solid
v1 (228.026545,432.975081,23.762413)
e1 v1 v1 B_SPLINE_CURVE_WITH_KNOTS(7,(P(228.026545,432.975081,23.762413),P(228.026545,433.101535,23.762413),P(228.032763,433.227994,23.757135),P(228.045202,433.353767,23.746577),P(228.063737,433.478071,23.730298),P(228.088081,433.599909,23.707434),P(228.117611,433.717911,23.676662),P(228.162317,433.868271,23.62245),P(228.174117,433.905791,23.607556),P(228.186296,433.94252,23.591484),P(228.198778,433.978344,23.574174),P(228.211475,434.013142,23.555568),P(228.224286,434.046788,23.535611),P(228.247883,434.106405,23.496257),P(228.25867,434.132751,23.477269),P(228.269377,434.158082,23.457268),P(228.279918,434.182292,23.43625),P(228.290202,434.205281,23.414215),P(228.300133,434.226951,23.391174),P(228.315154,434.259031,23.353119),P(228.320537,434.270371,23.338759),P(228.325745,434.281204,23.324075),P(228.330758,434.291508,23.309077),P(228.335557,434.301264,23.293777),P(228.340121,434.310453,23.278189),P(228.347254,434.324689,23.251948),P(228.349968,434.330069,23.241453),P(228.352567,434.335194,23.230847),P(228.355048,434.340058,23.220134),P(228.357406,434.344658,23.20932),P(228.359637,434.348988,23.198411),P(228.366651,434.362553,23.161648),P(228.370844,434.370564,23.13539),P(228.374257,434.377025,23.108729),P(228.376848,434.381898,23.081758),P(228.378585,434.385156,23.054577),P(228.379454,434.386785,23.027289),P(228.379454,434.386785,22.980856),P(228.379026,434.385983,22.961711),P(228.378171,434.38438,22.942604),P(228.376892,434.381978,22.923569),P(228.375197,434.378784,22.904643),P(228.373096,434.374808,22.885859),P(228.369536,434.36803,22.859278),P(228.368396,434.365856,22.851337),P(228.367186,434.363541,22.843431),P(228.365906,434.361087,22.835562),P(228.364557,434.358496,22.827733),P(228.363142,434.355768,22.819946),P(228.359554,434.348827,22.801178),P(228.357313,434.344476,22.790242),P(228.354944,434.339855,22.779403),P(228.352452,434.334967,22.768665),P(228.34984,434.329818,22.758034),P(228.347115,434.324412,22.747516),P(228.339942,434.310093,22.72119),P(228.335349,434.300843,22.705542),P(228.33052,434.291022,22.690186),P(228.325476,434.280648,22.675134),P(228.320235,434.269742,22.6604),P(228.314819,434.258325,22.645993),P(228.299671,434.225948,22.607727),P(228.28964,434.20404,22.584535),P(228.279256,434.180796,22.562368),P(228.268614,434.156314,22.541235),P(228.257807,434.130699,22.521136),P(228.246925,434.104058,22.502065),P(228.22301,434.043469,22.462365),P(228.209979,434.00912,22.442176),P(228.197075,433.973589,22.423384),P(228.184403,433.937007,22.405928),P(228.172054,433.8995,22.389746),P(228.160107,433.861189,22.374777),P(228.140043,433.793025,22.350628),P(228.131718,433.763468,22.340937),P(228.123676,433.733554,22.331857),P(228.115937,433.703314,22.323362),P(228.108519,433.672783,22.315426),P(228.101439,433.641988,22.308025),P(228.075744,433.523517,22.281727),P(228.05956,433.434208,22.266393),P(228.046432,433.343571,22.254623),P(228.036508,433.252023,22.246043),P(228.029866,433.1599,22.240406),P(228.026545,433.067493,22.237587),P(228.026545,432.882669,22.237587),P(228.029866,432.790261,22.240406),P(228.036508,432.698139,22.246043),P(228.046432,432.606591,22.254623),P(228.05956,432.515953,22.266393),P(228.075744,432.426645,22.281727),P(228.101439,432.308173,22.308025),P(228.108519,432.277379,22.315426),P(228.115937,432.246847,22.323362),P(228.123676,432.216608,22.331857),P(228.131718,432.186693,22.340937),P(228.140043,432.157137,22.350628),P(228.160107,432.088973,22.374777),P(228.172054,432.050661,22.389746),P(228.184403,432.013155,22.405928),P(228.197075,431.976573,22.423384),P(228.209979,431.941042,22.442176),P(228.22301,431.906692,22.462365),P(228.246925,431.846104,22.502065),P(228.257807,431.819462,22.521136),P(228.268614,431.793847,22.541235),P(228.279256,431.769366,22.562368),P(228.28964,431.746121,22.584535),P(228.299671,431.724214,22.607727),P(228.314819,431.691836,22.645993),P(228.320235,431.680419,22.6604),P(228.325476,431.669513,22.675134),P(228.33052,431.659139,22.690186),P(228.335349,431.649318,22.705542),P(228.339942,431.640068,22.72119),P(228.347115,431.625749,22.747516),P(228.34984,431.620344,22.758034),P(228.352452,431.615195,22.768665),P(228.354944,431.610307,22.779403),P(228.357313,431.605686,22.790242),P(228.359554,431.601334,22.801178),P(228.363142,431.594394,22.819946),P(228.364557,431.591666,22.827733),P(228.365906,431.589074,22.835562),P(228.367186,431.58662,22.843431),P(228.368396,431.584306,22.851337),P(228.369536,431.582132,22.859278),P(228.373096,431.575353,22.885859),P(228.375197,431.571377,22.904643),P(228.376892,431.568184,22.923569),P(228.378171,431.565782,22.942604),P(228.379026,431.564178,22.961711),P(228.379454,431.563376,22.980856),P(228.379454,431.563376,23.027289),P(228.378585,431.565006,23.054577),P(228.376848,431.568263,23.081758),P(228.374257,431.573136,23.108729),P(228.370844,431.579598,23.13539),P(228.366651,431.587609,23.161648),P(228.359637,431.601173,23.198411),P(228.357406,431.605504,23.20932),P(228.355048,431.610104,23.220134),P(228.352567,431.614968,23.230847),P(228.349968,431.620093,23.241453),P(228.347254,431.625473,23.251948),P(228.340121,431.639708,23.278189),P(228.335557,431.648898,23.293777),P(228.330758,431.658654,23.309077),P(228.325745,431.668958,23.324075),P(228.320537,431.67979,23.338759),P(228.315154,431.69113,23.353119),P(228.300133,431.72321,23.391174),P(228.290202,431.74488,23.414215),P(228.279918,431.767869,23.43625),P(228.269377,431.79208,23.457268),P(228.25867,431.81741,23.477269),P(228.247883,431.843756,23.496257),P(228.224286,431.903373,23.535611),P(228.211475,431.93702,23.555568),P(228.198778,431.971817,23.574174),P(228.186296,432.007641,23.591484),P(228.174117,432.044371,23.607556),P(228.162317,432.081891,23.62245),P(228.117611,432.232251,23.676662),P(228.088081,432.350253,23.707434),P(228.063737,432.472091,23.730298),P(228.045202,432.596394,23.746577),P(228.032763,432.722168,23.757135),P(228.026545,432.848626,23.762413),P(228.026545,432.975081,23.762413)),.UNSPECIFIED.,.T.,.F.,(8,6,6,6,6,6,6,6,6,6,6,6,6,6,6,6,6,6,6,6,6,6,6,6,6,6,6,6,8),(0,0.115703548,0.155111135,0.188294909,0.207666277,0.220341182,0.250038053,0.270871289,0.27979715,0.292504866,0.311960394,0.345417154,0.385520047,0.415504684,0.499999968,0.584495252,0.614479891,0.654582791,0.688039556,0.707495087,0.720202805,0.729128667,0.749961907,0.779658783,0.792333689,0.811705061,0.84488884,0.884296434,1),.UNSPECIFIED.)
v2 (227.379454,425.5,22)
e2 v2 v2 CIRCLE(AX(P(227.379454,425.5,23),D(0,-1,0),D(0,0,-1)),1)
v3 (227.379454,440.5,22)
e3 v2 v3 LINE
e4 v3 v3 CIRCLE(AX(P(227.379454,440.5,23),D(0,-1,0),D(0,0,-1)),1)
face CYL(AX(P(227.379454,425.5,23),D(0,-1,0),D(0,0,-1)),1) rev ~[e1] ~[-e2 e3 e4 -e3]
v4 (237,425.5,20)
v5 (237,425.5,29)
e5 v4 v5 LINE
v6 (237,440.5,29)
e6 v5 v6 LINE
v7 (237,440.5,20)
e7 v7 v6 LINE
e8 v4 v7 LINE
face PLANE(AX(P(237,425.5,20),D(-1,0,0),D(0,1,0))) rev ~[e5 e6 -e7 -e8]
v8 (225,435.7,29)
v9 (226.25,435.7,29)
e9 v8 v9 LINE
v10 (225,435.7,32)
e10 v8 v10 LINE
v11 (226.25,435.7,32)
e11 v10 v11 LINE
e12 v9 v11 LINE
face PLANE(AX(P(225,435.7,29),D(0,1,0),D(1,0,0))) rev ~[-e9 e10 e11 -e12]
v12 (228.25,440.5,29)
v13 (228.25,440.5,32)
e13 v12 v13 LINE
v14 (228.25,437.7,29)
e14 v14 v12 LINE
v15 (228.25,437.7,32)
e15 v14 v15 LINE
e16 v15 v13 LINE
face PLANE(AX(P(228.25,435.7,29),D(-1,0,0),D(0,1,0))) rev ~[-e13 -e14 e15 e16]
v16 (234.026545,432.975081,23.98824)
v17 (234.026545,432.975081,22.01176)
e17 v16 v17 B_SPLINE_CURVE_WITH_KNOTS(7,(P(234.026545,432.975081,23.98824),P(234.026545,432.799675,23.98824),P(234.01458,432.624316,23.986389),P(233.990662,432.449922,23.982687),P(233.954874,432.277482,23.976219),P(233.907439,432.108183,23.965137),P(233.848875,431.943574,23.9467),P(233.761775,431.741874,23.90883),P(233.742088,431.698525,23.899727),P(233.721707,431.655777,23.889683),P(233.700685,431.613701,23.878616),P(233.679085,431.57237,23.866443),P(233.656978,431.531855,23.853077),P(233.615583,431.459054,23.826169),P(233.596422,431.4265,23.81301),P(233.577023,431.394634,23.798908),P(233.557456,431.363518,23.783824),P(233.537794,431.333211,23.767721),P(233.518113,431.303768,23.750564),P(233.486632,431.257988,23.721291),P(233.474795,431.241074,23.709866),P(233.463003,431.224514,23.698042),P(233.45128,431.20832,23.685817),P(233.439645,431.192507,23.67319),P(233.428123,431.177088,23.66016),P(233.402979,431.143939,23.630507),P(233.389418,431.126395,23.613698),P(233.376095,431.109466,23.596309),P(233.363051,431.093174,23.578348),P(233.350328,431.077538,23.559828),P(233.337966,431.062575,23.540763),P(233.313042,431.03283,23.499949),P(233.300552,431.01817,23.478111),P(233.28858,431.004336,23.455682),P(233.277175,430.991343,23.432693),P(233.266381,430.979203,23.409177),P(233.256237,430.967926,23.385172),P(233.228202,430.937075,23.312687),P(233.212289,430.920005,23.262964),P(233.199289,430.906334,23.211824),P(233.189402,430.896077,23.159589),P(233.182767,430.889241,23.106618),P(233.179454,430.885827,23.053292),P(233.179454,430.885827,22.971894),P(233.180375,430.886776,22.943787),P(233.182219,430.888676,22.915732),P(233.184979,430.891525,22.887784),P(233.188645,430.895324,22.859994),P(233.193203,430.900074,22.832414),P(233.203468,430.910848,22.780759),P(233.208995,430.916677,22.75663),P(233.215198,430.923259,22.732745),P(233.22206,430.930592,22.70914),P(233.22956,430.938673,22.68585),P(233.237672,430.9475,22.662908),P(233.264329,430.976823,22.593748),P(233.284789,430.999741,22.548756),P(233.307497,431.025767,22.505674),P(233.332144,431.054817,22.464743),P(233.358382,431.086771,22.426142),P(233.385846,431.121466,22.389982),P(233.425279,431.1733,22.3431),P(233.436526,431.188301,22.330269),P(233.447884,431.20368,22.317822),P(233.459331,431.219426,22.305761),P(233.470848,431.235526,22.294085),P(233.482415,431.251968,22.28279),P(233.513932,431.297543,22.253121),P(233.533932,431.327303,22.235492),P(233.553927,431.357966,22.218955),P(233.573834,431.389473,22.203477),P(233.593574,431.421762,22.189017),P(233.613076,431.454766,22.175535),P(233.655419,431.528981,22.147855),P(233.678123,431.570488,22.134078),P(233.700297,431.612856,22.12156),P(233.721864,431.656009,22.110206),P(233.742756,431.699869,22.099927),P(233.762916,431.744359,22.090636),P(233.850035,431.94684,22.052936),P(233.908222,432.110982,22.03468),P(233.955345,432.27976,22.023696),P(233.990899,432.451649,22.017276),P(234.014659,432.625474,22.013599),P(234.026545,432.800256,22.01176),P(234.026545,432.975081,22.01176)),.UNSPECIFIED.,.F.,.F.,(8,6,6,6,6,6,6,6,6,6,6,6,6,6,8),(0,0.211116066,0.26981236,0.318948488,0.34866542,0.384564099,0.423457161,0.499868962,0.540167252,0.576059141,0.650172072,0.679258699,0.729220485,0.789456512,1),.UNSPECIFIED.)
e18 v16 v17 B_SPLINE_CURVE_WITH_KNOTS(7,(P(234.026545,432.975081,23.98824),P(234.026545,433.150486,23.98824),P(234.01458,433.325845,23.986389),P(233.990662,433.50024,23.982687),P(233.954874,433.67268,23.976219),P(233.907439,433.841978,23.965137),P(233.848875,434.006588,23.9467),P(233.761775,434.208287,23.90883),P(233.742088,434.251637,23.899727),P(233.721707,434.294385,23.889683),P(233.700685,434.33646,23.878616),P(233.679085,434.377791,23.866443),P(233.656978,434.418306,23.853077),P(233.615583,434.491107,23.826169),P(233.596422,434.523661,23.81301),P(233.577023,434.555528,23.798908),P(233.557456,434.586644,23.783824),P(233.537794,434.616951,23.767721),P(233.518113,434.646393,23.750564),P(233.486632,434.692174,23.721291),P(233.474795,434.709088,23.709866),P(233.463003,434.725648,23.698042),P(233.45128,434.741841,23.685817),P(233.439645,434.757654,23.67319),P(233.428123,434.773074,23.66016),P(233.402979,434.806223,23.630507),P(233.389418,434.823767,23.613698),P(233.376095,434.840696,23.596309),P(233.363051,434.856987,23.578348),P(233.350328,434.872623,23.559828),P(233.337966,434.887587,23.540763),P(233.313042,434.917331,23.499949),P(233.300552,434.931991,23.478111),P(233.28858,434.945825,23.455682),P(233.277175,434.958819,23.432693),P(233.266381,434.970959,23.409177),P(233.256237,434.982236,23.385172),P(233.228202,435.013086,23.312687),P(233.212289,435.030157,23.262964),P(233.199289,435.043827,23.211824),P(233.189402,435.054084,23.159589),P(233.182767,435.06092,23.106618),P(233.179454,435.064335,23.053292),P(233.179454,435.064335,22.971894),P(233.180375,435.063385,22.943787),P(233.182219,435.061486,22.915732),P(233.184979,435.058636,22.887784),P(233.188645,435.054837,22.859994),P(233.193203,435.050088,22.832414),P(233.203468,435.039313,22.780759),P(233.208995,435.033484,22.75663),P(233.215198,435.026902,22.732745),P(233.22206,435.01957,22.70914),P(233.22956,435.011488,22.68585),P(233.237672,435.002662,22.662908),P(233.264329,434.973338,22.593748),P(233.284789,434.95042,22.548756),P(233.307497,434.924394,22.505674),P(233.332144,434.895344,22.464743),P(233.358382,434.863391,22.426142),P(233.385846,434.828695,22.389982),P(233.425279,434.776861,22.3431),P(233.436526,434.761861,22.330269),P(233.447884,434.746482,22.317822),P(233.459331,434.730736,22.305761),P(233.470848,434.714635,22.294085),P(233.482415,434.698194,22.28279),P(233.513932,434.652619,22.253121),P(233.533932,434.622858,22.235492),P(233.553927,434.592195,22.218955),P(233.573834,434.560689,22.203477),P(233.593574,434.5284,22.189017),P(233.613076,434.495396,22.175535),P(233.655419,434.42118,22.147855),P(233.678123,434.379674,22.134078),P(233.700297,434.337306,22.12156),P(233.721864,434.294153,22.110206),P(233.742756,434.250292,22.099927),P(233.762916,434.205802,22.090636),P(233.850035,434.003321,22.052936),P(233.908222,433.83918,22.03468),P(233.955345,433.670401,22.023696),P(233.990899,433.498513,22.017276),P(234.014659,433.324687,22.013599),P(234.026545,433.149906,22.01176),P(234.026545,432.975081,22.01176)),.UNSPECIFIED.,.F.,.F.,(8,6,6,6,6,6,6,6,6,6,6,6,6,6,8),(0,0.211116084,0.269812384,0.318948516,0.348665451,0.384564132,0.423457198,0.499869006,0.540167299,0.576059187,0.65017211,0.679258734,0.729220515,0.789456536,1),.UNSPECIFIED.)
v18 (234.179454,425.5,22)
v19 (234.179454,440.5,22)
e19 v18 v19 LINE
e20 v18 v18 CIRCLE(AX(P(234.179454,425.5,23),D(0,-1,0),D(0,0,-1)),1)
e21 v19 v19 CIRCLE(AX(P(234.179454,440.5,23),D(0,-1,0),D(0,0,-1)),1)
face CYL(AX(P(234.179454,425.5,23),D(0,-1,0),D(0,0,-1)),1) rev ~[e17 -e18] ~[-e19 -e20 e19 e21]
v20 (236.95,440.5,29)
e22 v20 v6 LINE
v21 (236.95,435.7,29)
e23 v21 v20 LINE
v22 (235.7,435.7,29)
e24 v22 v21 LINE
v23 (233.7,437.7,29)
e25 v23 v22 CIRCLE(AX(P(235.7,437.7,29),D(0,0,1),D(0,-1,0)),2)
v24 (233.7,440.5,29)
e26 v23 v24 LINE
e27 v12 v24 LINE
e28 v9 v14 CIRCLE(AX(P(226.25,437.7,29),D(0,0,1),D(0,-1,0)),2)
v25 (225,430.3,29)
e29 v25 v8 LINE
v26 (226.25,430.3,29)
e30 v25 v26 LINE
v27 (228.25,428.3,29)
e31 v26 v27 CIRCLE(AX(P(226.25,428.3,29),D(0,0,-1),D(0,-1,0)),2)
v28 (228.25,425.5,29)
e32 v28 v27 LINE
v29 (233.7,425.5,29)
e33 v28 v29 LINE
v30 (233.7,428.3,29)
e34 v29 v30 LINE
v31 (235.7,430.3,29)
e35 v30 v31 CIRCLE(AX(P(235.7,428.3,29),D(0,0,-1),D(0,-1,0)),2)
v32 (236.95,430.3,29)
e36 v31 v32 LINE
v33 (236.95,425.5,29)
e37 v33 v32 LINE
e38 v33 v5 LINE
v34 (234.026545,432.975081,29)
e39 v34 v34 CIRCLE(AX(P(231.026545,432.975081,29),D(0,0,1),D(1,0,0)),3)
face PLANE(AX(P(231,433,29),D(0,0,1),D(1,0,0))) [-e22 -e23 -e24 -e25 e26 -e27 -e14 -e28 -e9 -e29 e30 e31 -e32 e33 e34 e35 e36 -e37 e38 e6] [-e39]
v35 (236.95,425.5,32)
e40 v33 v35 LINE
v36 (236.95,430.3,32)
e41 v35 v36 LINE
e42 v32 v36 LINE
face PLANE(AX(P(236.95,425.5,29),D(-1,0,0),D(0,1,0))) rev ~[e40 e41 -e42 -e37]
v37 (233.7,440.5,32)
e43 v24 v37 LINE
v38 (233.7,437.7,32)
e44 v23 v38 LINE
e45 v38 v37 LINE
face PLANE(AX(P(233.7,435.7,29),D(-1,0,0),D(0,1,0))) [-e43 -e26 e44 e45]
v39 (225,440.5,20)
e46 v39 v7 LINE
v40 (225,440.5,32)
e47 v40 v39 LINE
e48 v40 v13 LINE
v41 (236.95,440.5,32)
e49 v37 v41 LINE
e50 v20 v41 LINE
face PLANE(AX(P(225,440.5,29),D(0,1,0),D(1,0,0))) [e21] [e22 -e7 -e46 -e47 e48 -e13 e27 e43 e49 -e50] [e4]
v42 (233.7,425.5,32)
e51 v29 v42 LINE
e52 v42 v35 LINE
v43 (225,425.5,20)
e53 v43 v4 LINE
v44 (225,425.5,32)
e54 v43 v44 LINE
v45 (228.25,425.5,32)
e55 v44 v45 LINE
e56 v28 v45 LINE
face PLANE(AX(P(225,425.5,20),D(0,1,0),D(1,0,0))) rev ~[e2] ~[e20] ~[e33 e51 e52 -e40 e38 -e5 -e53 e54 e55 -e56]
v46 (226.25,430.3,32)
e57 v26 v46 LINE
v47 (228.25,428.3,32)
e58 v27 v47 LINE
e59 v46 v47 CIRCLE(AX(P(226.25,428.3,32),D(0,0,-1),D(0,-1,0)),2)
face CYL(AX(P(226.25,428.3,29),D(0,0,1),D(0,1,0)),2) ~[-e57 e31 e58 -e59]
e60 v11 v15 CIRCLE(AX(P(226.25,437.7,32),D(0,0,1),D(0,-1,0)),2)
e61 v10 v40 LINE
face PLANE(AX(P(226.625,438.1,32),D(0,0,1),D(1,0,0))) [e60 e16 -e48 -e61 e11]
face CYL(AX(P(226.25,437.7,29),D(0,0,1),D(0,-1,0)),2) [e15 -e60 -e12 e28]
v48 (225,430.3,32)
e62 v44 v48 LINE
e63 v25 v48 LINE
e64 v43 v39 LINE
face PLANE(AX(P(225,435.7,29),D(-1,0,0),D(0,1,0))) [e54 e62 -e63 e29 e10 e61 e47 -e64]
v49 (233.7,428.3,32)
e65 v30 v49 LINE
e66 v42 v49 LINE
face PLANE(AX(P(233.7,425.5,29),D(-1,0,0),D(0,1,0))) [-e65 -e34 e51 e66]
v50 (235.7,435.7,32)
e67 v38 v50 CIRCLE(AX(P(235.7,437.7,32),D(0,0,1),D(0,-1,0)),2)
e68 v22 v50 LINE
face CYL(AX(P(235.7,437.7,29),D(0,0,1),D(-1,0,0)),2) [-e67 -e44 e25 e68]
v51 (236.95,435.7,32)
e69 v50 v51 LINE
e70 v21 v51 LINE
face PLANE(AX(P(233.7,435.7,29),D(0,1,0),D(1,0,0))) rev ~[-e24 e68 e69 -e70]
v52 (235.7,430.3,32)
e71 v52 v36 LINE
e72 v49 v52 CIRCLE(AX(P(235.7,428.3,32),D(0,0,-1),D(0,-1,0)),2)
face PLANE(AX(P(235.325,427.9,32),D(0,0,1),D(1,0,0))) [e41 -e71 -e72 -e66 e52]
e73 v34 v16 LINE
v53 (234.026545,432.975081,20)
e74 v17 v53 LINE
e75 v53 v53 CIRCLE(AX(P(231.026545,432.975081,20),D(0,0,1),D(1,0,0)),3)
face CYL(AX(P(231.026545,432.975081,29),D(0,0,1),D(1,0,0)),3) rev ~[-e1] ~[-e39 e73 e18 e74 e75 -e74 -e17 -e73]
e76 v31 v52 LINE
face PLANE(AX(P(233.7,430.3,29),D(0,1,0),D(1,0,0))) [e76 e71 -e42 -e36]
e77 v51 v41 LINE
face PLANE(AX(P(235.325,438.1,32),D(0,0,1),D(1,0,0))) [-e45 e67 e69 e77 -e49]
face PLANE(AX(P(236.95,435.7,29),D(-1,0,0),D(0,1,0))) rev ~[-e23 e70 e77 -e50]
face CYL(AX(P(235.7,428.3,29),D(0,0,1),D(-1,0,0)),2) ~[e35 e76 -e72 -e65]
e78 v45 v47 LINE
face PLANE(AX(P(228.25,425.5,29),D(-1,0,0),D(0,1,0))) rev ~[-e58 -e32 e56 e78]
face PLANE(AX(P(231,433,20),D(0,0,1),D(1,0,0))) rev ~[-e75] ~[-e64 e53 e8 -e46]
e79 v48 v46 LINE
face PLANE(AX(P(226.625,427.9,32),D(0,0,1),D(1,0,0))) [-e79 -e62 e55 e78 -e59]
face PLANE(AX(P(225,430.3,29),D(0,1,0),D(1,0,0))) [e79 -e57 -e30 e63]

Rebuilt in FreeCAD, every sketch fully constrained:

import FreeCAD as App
import Part
import Sketcher


def edges_at(feature, points):
    """Names of the edges that pass closest to the given points."""
    edges = feature.Shape.Edges
    near = lambda p: min(range(len(edges)), key=lambda i: edges[i].distToShape(Part.Vertex(*p))[0])
    return sorted({f"Edge{near(p) + 1}" for p in points})


def add_polygon(sketch, points):
    """Adds a closed chain of lines whose ends are joined by coincident constraints."""
    first, n = sketch.GeometryCount, len(points)
    for a, b in zip(points, points[1:] + points[:1]):
        sketch.addGeometry(Part.LineSegment(App.Vector(*a, 0), App.Vector(*b, 0)), False)
    for i in range(n):
        sketch.addConstraint(Sketcher.Constraint("Coincident", first + i, 2, first + (i + 1) % n, 1))

doc = App.newDocument("Part")
body = doc.addObject("PartDesign::Body", "Body")

sketch1 = doc.addObject("Sketcher::SketchObject", "Sketch")
body.addObject(sketch1)
sketch1.AttachmentSupport = (doc.XY_Plane, [""])
sketch1.MapMode = "FlatFace"
sketch1.AttachmentOffset = App.Placement(App.Vector(0, 0, 20), App.Rotation())
add_polygon(sketch1, [(225, 440), (225, 426), (237, 426), (237, 440)])
sketch1.addConstraint([
    Sketcher.Constraint("Vertical", 0),
    Sketcher.Constraint("Horizontal", 1),
    Sketcher.Constraint("Vertical", 2),
    Sketcher.Constraint("Horizontal", 3),
    Sketcher.Constraint("DistanceX", 1, 1, 1, 2, 12.0),
    Sketcher.Constraint("DistanceY", 0, 2, 0, 1, 15.0),
    Sketcher.Constraint("DistanceX", -1, 1, 0, 2, 225.0),
    Sketcher.Constraint("DistanceY", -1, 1, 0, 2, 425.5),
])
pad1 = doc.addObject("PartDesign::Pad", "Pad")
body.addObject(pad1)
pad1.Profile = sketch1
pad1.Length = 9

sketch2 = doc.addObject("Sketcher::SketchObject", "Sketch001")
body.addObject(sketch2)
sketch2.AttachmentSupport = (doc.XY_Plane, [""])
sketch2.MapMode = "FlatFace"
sketch2.AttachmentOffset = App.Placement(App.Vector(0, 0, 29), App.Rotation())
add_polygon(sketch2, [(233.7, 440.5), (233.7, 435.7), (236.9, 435.7), (236.9, 440.5)])
add_polygon(sketch2, [(225, 440.5), (225, 435.7), (228.2, 435.7), (228.2, 440.5)])
add_polygon(sketch2, [(233.7, 430.3), (233.7, 425.5), (236.9, 425.5), (236.9, 430.3)])
add_polygon(sketch2, [(225, 430.3), (225, 425.5), (228.2, 425.5), (228.2, 430.3)])
sketch2.addConstraint([
    Sketcher.Constraint("Vertical", 0),
    Sketcher.Constraint("Horizontal", 1),
    Sketcher.Constraint("Vertical", 2),
    Sketcher.Constraint("Horizontal", 3),
    Sketcher.Constraint("Vertical", 4),
    Sketcher.Constraint("Horizontal", 5),
    Sketcher.Constraint("Vertical", 6),
    Sketcher.Constraint("Horizontal", 7),
    Sketcher.Constraint("Vertical", 8),
    Sketcher.Constraint("Horizontal", 9),
    Sketcher.Constraint("Vertical", 10),
    Sketcher.Constraint("Horizontal", 11),
    Sketcher.Constraint("Vertical", 12),
    Sketcher.Constraint("Horizontal", 13),
    Sketcher.Constraint("Vertical", 14),
    Sketcher.Constraint("Horizontal", 15),
    Sketcher.Constraint("Horizontal", 1, 2, 4, 2),
    Sketcher.Constraint("Horizontal", 3, 2, 6, 2),
    Sketcher.Constraint("Horizontal", 9, 2, 12, 2),
    Sketcher.Constraint("Horizontal", 11, 2, 14, 2),
    Sketcher.Constraint("Vertical", 3, 2, 8, 2),
    Sketcher.Constraint("Vertical", 2, 2, 9, 2),
    Sketcher.Constraint("Vertical", 7, 2, 12, 2),
    Sketcher.Constraint("Vertical", 6, 2, 13, 2),
    Sketcher.Constraint("Equal", 3, 5),
    Sketcher.Constraint("Equal", 6, 8),
    Sketcher.Constraint("DistanceY", 0, 2, 0, 1, 4.8),
    Sketcher.Constraint("DistanceX", -1, 1, 4, 2, 225.0),
    Sketcher.Constraint("DistanceY", 8, 2, 3, 2, 15.0),
    Sketcher.Constraint("DistanceX", 1, 1, 1, 2, 3.25),
    Sketcher.Constraint("DistanceX", -1, 1, 0, 2, 233.7),
    Sketcher.Constraint("DistanceY", -1, 1, 0, 2, 435.7),
])
pad2 = doc.addObject("PartDesign::Pad", "Pad001")
body.addObject(pad2)
pad2.Profile = sketch2
pad2.Length = 3

sketch3 = doc.addObject("Sketcher::SketchObject", "Sketch002")
body.addObject(sketch3)
sketch3.AttachmentSupport = (doc.XY_Plane, [""])
sketch3.MapMode = "FlatFace"
sketch3.AttachmentOffset = App.Placement(App.Vector(0, 0, 29), App.Rotation())
sketch3.addGeometry(Part.Circle(App.Vector(231, 433, 0), App.Vector(0, 0, 1), 3), False)
sketch3.addConstraint([
    Sketcher.Constraint("Diameter", 0, 6.0),
    Sketcher.Constraint("DistanceY", -1, 1, 0, 3, 432.975081),
    Sketcher.Constraint("DistanceX", -1, 1, 0, 3, 231.026545),
])
pocket1 = doc.addObject("PartDesign::Pocket", "Pocket")
body.addObject(pocket1)
pocket1.Profile = sketch3
pocket1.Type = "ThroughAll"
doc.recompute()

fillet = doc.addObject("PartDesign::Fillet", "Fillet")
body.addObject(fillet)
fillet.Base = (pocket1, edges_at(pocket1, [
    (228.25, 435.7, 30.5),
    (233.7, 435.7, 30.5),
    (233.7, 430.3, 30.5),
    (228.25, 430.3, 30.5),
]))
fillet.Radius = 2

sketch4 = doc.addObject("Sketcher::SketchObject", "Sketch003")
body.addObject(sketch4)
sketch4.AttachmentSupport = (doc.XZ_Plane, [""])
sketch4.MapMode = "FlatFace"
sketch4.AttachmentOffset = App.Placement(App.Vector(0, 0, -425.5), App.Rotation())
sketch4.addGeometry([
    Part.Circle(App.Vector(227.4, 23, 0), App.Vector(0, 0, 1), 1),
    Part.Circle(App.Vector(234.2, 23, 0), App.Vector(0, 0, 1), 1),
], False)
sketch4.addConstraint([
    Sketcher.Constraint("Equal", 0, 1),
    Sketcher.Constraint("Horizontal", 0, 3, 1, 3),
    Sketcher.Constraint("Diameter", 0, 2.0),
    Sketcher.Constraint("DistanceY", -1, 1, 0, 3, 23.0),
    Sketcher.Constraint("DistanceX", 0, 3, 1, 3, 6.8),
    Sketcher.Constraint("DistanceX", -1, 1, 0, 3, 227.379454),
])
pocket2 = doc.addObject("PartDesign::Pocket", "Pocket001")
body.addObject(pocket2)
pocket2.Profile = sketch4
pocket2.Length = 15

doc.recompute()
